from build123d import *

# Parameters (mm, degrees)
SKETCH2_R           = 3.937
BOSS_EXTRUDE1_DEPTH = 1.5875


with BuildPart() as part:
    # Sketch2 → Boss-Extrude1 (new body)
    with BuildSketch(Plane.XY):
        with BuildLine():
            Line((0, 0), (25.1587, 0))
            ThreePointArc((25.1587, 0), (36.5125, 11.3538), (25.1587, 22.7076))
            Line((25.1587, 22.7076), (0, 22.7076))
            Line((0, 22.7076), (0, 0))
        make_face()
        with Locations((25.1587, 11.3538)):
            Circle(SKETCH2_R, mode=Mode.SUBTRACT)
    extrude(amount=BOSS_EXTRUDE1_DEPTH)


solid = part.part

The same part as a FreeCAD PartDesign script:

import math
import FreeCAD as App
import Part
import Sketcher
from FreeCAD import Vector
Q = App.Units.Quantity

doc = App.newDocument("Part")
body = doc.addObject("PartDesign::Body", "Body")

# Sketch on XY plane
sketch1 = doc.addObject("Sketcher::SketchObject", "Sketch")
body.addObject(sketch1)
sketch1.AttachmentSupport = (doc.XY_Plane, [""])
sketch1.MapMode = "FlatFace"
sketch1.addGeometry([
    Part.LineSegment(Vector(0, 0, 0), Vector(25.1587, 0, 0)),  # 0
    Part.ArcOfCircle(Part.Circle(Vector(25.1587, 11.3538, 0), Vector(0, 0, 1), 11.3538), math.radians(-90), math.radians(90)),  # 1
    Part.LineSegment(Vector(25.1587, 22.7076, 0), Vector(0, 22.7076, 0)),  # 2
    Part.LineSegment(Vector(0, 22.7076, 0), Vector(0, 0, 0)),  # 3
    Part.Circle(Vector(25.1587, 11.3538, 0), Vector(0, 0, 1), 3.937),  # 4
], False)
sketch1.addConstraint([
    Sketcher.Constraint("Tangent", 0, 2, 1, 1),
    Sketcher.Constraint("Tangent", 1, 2, 2, 1),
    Sketcher.Constraint("Coincident", 2, 2, 3, 1),
    Sketcher.Constraint("Coincident", 3, 2, 0, 1),
    Sketcher.Constraint("Horizontal", 0),
    Sketcher.Constraint("Horizontal", 2),
    Sketcher.Constraint("Vertical", 3),
    Sketcher.Constraint("Coincident", 3, 2, -1, 1),
    Sketcher.Constraint("Coincident", 4, 3, 1, 3),
    Sketcher.Constraint("Diameter", 4, Q("0.31 in")),
    Sketcher.Constraint("Radius", 1, Q("0.447 in")),
    Sketcher.Constraint("DistanceX", 0, 1, 0, 2, Q("0.9905 in")),
])
pad1 = doc.addObject("PartDesign::Pad", "Pad")
body.addObject(pad1)
pad1.Profile = sketch1
pad1.Length = Q("0.0625 in")

doc.recompute()
